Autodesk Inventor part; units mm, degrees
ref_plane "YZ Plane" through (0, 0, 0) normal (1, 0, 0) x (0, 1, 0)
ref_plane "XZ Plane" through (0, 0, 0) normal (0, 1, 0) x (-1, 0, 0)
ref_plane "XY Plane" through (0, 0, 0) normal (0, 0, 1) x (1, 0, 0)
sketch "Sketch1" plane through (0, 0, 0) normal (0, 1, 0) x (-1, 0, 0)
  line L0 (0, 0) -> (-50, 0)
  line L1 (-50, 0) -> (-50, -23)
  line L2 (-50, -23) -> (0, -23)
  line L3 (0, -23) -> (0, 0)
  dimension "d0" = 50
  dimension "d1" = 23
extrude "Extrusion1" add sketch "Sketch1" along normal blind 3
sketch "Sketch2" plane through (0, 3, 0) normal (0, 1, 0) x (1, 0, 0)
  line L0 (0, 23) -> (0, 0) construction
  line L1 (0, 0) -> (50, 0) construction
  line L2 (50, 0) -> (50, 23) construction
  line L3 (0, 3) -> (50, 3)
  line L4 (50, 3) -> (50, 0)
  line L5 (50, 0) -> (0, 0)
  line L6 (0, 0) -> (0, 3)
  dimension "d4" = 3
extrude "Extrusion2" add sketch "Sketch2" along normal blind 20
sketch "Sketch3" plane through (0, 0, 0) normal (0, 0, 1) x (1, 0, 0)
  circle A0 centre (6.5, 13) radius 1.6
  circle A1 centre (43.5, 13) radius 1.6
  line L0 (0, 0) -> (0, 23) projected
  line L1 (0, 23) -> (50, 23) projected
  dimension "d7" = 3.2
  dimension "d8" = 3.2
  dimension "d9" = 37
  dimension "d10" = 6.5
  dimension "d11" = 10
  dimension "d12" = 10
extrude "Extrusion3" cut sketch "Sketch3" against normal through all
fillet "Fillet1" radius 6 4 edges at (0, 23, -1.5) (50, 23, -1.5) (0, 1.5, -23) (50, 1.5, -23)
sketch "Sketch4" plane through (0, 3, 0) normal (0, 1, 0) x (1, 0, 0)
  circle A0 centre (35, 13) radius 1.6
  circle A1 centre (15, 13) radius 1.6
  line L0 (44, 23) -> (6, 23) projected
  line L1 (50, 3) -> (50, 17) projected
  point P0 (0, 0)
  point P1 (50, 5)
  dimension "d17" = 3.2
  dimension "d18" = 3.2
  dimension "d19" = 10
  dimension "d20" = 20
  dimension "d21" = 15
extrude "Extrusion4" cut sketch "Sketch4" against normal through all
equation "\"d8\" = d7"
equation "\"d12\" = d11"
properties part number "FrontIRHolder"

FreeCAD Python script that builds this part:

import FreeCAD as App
import Part
import Sketcher

V = App.Vector
Q = App.Units.Quantity


def edges_at(feature, points):
    """Names of the edges that pass closest to the given points."""
    edges = feature.Shape.Edges
    near = lambda p: min(range(len(edges)), key=lambda i: edges[i].distToShape(Part.Vertex(*p))[0])
    return sorted({f"Edge{near(p) + 1}" for p in points})


def add_polygon(sketch, points):
    """Adds a closed chain of lines whose ends are joined by coincident constraints."""
    first, n = sketch.GeometryCount, len(points)
    for a, b in zip(points, points[1:] + points[:1]):
        sketch.addGeometry(Part.LineSegment(App.Vector(*a, 0), App.Vector(*b, 0)), False)
    for i in range(n):
        sketch.addConstraint(Sketcher.Constraint("Coincident", first + i, 2, first + (i + 1) % n, 1))

doc = App.newDocument("Part")
body = doc.addObject("PartDesign::Body", "Body")

sketch1 = body.newObject("Sketcher::SketchObject", "Sketch")
sketch1.AttachmentSupport = (doc.getObject("XZ_Plane"), [""])
sketch1.MapMode = "FlatFace"
add_polygon(sketch1, [(0, -23), (0, 0), (50, 0), (50, -23)])
sketch1.addConstraint([
    Sketcher.Constraint("Vertical", 0),
    Sketcher.Constraint("Horizontal", 1),
    Sketcher.Constraint("Vertical", 2),
    Sketcher.Constraint("Horizontal", 3),
    Sketcher.Constraint("Coincident", 0, 2, -1, 1),
    Sketcher.Constraint("DistanceX", 1, 1, 1, 2, Q("50 mm")),
    Sketcher.Constraint("DistanceY", 0, 1, 0, 2, Q("23 mm")),
])
pad1 = body.newObject("PartDesign::Pad", "Pad")
pad1.Profile = sketch1
pad1.Length = 3
pad1.Reversed = True

sketch2 = body.newObject("Sketcher::SketchObject", "Sketch001")
sketch2.AttachmentSupport = (doc.getObject("XZ_Plane"), [""])
sketch2.MapMode = "FlatFace"
sketch2.AttachmentOffset = App.Placement(V(0, 0, -3), App.Rotation())
add_polygon(sketch2, [(50, -3), (0, -3), (0, 0), (50, 0)])
sketch2.addConstraint([
    Sketcher.Constraint("Horizontal", 0),
    Sketcher.Constraint("Vertical", 1),
    Sketcher.Constraint("Horizontal", 2),
    Sketcher.Constraint("Vertical", 3),
    Sketcher.Constraint("Coincident", 1, 2, -1, 1),
    Sketcher.Constraint("DistanceY", 1, 1, 1, 2, Q("3 mm")),
    Sketcher.Constraint("DistanceX", 0, 2, 0, 1, Q("50 mm")),
])
pad2 = body.newObject("PartDesign::Pad", "Pad001")
pad2.Profile = sketch2
pad2.Length = 20
pad2.Reversed = True

sketch3 = body.newObject("Sketcher::SketchObject", "Sketch002")
sketch3.AttachmentSupport = (doc.getObject("XY_Plane"), [""])
sketch3.MapMode = "FlatFace"
sketch3.addGeometry([
    Part.Circle(V(6.5, 13, 0), V(0, 0, 1), 1.6),
    Part.Circle(V(43.5, 13, 0), V(0, 0, 1), 1.6),
], False)
sketch3.addConstraint([
    Sketcher.Constraint("Equal", 0, 1),
    Sketcher.Constraint("Horizontal", 0, 3, 1, 3),
    Sketcher.Constraint("Diameter", 0, Q("3.2 mm")),
    Sketcher.Constraint("DistanceX", 0, 3, 1, 3, Q("37 mm")),
    Sketcher.Constraint("DistanceX", -1, 1, 0, 3, Q("6.5 mm")),
    Sketcher.Constraint("DistanceY", -1, 1, 0, 3, Q("13 mm")),
])
pocket1 = body.newObject("PartDesign::Pocket", "Pocket")
pocket1.Profile = sketch3
pocket1.Type = "ThroughAll"
doc.recompute()

fillet = body.newObject("PartDesign::Fillet", "Fillet")
fillet.Base = (pocket1, edges_at(pocket1, [
    (0, 23, -1.5),
    (50, 23, -1.5),
    (0, 1.5, -23),
    (50, 1.5, -23),
]))
fillet.Radius = 6

sketch4 = body.newObject("Sketcher::SketchObject", "Sketch003")
sketch4.AttachmentSupport = (doc.getObject("XZ_Plane"), [""])
sketch4.MapMode = "FlatFace"
sketch4.AttachmentOffset = App.Placement(V(0, 0, -3), App.Rotation())
sketch4.addGeometry([
    Part.Circle(V(35, -13, 0), V(0, 0, 1), 1.6),
    Part.Circle(V(15, -13, 0), V(0, 0, 1), 1.6),
], False)
sketch4.addConstraint([
    Sketcher.Constraint("Equal", 0, 1),
    Sketcher.Constraint("Horizontal", 0, 3, 1, 3),
    Sketcher.Constraint("Diameter", 0, Q("3.2 mm")),
    Sketcher.Constraint("DistanceX", -1, 1, 1, 3, Q("15 mm")),
    Sketcher.Constraint("DistanceX", 1, 3, 0, 3, Q("20 mm")),
    Sketcher.Constraint("DistanceY", 0, 3, -1, 1, Q("13 mm")),
])
pocket2 = body.newObject("PartDesign::Pocket", "Pocket001")
pocket2.Profile = sketch4
pocket2.Type = "ThroughAll"
pocket2.Reversed = True

doc.recompute()
